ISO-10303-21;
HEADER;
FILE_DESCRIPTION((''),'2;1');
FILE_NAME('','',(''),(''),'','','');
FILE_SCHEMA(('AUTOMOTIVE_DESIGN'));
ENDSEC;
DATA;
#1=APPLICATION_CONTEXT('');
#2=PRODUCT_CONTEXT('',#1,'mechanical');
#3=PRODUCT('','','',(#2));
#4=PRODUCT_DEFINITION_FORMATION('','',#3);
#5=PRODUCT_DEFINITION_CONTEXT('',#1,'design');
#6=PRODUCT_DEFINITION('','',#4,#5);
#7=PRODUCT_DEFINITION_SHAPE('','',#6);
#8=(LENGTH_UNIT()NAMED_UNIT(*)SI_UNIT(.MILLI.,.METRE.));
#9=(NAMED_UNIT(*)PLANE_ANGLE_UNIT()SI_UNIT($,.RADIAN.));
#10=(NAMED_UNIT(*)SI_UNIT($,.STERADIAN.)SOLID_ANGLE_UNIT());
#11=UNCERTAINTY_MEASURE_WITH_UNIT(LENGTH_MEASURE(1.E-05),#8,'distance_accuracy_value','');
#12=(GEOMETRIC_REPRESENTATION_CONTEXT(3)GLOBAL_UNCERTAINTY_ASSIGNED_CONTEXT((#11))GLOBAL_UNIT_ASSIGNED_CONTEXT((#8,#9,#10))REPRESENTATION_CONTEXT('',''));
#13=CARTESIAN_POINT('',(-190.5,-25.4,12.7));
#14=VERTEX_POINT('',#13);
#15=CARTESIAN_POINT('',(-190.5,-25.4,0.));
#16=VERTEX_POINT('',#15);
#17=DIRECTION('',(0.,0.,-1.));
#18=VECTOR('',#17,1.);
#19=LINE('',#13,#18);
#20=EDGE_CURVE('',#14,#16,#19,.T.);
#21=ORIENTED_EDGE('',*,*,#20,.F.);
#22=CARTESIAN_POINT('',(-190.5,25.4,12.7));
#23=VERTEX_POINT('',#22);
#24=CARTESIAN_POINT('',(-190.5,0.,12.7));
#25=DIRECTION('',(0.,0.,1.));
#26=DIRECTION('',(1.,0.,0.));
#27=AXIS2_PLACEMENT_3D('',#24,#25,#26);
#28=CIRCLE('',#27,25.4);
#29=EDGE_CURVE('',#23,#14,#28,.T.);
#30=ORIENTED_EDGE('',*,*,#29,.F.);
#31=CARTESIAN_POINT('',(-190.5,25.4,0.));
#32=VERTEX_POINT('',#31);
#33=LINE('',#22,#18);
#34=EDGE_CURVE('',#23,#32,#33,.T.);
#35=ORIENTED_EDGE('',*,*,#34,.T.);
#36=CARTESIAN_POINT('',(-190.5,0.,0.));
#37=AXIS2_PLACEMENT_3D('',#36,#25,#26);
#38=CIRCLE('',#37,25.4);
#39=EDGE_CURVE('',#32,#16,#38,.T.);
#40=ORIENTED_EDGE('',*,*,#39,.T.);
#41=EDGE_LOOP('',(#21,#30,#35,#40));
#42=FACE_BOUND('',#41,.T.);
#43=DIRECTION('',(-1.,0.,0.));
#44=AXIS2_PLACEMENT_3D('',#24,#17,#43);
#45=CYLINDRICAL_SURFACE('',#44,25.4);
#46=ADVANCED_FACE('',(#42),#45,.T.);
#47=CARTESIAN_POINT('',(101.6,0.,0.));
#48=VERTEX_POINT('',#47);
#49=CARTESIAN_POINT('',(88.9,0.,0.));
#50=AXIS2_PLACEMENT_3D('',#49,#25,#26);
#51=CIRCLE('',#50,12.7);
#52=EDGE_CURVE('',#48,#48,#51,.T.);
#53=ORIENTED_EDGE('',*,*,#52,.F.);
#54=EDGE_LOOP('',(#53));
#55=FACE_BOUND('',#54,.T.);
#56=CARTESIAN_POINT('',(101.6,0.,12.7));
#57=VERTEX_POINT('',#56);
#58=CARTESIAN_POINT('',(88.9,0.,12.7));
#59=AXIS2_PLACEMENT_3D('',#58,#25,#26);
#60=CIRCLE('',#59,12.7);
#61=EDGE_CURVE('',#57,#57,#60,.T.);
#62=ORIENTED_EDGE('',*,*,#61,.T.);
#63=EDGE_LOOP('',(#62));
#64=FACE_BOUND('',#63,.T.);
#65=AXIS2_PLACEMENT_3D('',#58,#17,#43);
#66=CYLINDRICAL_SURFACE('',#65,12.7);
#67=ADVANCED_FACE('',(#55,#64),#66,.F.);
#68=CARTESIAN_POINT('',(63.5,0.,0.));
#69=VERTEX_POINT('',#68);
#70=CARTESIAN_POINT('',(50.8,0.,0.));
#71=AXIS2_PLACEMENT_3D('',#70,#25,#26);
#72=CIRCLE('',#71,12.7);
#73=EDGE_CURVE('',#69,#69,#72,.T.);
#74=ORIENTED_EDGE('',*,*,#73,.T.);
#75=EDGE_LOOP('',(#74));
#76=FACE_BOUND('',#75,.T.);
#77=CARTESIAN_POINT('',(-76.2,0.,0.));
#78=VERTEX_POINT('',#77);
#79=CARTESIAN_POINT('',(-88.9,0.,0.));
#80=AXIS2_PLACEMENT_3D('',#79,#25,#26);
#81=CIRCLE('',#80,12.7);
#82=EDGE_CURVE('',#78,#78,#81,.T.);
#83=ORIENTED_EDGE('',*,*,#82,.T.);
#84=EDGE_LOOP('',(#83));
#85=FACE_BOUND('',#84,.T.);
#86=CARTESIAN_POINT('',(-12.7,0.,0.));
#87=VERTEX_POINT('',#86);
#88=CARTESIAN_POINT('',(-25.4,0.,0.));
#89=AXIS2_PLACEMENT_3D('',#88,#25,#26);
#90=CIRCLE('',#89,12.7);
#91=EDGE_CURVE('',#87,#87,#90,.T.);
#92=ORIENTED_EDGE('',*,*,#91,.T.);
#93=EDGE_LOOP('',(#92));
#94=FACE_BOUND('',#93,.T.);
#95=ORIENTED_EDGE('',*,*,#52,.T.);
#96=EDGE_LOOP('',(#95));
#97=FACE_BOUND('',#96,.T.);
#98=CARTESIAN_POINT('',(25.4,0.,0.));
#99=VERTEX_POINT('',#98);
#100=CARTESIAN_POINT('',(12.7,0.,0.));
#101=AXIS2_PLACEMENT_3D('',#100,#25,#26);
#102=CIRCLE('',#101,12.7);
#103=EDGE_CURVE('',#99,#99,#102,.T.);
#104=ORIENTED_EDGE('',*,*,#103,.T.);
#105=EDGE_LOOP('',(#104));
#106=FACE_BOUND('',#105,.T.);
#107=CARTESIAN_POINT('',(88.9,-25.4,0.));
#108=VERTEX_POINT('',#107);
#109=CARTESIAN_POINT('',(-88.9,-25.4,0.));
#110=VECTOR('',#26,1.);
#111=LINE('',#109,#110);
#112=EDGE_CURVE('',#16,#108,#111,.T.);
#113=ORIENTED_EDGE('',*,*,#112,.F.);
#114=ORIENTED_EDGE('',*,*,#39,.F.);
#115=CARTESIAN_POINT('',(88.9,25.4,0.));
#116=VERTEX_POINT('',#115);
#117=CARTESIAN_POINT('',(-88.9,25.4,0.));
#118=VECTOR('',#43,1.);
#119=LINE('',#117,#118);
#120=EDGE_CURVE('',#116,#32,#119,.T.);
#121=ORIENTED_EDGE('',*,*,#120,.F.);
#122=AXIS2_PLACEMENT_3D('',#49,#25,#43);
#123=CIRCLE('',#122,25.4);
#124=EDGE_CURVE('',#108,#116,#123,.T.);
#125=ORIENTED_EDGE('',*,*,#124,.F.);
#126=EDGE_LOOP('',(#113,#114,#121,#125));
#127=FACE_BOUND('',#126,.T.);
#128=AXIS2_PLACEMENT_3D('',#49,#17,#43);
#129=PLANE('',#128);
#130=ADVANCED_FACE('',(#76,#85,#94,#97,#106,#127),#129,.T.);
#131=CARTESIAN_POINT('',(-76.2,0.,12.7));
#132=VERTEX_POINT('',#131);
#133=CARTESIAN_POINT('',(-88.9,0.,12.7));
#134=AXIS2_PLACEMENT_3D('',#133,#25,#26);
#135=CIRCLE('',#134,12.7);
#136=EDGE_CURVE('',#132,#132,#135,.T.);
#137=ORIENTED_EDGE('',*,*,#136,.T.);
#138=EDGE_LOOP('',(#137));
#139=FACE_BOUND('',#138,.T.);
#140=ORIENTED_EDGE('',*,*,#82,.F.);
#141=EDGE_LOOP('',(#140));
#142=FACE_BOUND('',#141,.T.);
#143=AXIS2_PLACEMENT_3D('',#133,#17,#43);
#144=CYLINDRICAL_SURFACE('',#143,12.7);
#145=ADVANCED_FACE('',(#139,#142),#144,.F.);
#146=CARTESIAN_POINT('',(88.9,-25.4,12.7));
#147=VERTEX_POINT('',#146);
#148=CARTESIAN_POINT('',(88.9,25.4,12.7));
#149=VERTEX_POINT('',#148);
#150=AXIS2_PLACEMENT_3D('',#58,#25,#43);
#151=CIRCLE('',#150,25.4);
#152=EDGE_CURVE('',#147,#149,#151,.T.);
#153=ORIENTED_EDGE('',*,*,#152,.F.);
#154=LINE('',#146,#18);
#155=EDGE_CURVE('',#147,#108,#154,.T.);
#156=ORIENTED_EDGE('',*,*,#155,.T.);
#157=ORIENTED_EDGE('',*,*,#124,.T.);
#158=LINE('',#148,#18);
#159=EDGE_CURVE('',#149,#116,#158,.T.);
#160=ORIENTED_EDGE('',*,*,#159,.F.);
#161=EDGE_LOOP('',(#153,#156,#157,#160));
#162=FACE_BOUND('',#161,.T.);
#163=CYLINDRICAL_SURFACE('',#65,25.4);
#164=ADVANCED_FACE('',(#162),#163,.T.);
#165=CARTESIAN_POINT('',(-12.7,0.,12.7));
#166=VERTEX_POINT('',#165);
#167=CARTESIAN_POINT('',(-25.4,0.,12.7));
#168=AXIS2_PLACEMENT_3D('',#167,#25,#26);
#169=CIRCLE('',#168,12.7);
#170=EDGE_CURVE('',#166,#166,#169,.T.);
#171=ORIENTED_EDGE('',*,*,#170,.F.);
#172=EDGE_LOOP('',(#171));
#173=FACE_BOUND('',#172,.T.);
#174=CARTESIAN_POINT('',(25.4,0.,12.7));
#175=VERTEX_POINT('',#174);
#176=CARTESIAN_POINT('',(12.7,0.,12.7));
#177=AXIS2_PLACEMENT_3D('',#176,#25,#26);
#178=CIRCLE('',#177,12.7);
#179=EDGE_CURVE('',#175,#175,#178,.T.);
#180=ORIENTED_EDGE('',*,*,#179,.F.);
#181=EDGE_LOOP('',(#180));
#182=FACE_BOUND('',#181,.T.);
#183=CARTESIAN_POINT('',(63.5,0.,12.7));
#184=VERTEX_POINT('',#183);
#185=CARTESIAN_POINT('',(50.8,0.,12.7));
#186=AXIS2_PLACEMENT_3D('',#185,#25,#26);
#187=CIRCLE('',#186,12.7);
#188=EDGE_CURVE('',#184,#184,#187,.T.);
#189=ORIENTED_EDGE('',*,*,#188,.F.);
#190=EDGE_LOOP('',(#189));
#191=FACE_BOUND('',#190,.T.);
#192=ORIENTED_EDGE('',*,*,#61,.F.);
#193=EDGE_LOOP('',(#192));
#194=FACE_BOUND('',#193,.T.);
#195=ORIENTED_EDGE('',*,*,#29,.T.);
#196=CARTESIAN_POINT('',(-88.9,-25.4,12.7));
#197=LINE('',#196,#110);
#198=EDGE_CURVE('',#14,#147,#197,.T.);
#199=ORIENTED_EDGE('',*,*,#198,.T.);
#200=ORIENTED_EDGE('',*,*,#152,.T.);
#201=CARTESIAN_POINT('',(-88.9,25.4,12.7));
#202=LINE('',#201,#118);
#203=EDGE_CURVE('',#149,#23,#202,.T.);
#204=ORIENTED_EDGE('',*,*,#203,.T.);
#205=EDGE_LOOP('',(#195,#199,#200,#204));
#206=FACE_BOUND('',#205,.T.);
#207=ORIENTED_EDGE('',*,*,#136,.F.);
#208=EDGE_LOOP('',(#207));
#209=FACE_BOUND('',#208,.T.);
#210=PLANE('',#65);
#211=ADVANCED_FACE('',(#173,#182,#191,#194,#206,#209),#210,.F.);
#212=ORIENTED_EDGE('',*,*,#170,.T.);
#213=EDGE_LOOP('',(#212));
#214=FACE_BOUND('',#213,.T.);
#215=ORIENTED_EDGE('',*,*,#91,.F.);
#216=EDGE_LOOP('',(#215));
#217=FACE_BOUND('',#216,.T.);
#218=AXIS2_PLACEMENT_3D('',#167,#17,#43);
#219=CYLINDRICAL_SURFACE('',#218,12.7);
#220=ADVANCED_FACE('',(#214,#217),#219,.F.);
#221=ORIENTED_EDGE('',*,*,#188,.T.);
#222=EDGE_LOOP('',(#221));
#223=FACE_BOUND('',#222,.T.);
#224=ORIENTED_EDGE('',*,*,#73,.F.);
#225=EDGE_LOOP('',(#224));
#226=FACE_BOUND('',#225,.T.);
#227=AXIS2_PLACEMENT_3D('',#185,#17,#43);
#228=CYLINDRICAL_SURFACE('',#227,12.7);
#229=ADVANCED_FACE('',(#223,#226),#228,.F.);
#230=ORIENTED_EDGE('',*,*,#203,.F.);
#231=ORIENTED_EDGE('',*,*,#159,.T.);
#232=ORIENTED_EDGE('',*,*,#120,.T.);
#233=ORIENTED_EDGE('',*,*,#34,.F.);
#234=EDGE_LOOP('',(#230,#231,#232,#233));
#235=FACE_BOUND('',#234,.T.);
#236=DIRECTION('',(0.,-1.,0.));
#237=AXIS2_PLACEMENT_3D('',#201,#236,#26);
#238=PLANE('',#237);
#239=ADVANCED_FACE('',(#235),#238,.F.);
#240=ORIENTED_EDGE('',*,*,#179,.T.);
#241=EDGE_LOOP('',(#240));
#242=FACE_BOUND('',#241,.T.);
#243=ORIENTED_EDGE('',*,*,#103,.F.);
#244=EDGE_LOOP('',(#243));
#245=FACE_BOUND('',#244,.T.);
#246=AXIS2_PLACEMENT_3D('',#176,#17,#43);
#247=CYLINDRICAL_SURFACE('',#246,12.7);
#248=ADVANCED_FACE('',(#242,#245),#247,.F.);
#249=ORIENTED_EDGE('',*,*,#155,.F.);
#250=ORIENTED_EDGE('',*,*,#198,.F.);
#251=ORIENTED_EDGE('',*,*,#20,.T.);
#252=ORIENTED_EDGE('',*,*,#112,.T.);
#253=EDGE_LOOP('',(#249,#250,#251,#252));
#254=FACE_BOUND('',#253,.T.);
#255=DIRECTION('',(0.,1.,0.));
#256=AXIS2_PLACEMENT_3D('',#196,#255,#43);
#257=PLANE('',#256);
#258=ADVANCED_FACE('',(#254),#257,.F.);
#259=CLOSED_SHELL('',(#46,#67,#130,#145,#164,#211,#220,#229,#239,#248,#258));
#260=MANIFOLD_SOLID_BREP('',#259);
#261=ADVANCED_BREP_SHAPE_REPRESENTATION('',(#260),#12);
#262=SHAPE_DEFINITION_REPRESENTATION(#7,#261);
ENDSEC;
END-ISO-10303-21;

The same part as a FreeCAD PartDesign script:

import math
import FreeCAD as App
import Part
import Sketcher

V = App.Vector
Q = App.Units.Quantity

doc = App.newDocument("Part")
params = doc.addObject("Spreadsheet::Sheet", "Params")
for row, (alias, value) in enumerate([
    ("sketch1_diameter", "1 in"),
    ("sketch1_radius", "1 in"),
    ("sketch1_width", "11 in"),
    ("pad1_length", "0.5 in"),
], start=1):
    params.set(f"A{row}", alias)
    params.set(f"B{row}", "=" + value)
    params.setAlias(f"B{row}", alias)

body = doc.addObject("PartDesign::Body", "Body")

sketch1 = body.newObject("Sketcher::SketchObject", "Sketch")
sketch1.AttachmentSupport = (doc.getObject("XY_Plane"), [""])
sketch1.MapMode = "FlatFace"
sketch1.addGeometry([
    Part.ArcOfCircle(Part.Circle(V(89, 0, 0), V(0, 0, 1), 25), math.radians(-90), math.radians(90)),
    Part.LineSegment(V(89, 25, 0), V(-190, 25, 0)),
    Part.ArcOfCircle(Part.Circle(V(-190, 0, 0), V(0, 0, 1), 25), math.radians(90), math.radians(270)),
    Part.LineSegment(V(-190, -25, 0), V(89, -25, 0)),
    Part.Circle(V(89, 0, 0), V(0, 0, 1), 13),
    Part.Circle(V(51, 0, 0), V(0, 0, 1), 13),
    Part.Circle(V(13, 0, 0), V(0, 0, 1), 13),
    Part.Circle(V(-25, 0, 0), V(0, 0, 1), 13),
    Part.Circle(V(-89, 0, 0), V(0, 0, 1), 13),
], False)
sketch1.addConstraint([
    Sketcher.Constraint("Tangent", 0, 2, 1, 1),
    Sketcher.Constraint("Tangent", 1, 2, 2, 1),
    Sketcher.Constraint("Tangent", 2, 2, 3, 1),
    Sketcher.Constraint("Tangent", 3, 2, 0, 1),
    Sketcher.Constraint("Horizontal", 1),
    Sketcher.Constraint("Horizontal", 3),
    Sketcher.Constraint("Coincident", 4, 3, 0, 3),
    Sketcher.Constraint("Equal", 4, 5),
    Sketcher.Constraint("Equal", 5, 6),
    Sketcher.Constraint("Equal", 6, 7),
    Sketcher.Constraint("Equal", 7, 8),
    Sketcher.Constraint("Symmetric", 0, 3, 8, 3, -1, 1),
    Sketcher.Constraint("PointOnObject", 0, 3, -1),
    Sketcher.Constraint("PointOnObject", 5, 3, -1),
    Sketcher.Constraint("PointOnObject", 6, 3, -1),
    Sketcher.Constraint("PointOnObject", 7, 3, -1),
    Sketcher.Constraint("Diameter", 4, Q("1 in")),
    Sketcher.Constraint("Radius", 0, Q("1 in")),
    Sketcher.Constraint("DistanceX", 1, 2, 1, 1, Q("11 in")),
    Sketcher.Constraint("DistanceX", -1, 1, 5, 3, Q("2 in")),
    Sketcher.Constraint("DistanceX", 7, 3, -1, 1, Q("1 in")),
    Sketcher.Constraint("DistanceX", 6, 3, 0, 3, Q("3 in")),
    Sketcher.Constraint("DistanceX", 2, 3, 8, 3, Q("4 in")),
])
sketch1.setExpression("Constraints[16]", "Params.sketch1_diameter")
sketch1.setExpression("Constraints[17]", "Params.sketch1_radius")
sketch1.setExpression("Constraints[18]", "Params.sketch1_width")
pad1 = body.newObject("PartDesign::Pad", "Pad")
pad1.Profile = sketch1
pad1.setExpression("Length", "Params.pad1_length")

doc.recompute()
